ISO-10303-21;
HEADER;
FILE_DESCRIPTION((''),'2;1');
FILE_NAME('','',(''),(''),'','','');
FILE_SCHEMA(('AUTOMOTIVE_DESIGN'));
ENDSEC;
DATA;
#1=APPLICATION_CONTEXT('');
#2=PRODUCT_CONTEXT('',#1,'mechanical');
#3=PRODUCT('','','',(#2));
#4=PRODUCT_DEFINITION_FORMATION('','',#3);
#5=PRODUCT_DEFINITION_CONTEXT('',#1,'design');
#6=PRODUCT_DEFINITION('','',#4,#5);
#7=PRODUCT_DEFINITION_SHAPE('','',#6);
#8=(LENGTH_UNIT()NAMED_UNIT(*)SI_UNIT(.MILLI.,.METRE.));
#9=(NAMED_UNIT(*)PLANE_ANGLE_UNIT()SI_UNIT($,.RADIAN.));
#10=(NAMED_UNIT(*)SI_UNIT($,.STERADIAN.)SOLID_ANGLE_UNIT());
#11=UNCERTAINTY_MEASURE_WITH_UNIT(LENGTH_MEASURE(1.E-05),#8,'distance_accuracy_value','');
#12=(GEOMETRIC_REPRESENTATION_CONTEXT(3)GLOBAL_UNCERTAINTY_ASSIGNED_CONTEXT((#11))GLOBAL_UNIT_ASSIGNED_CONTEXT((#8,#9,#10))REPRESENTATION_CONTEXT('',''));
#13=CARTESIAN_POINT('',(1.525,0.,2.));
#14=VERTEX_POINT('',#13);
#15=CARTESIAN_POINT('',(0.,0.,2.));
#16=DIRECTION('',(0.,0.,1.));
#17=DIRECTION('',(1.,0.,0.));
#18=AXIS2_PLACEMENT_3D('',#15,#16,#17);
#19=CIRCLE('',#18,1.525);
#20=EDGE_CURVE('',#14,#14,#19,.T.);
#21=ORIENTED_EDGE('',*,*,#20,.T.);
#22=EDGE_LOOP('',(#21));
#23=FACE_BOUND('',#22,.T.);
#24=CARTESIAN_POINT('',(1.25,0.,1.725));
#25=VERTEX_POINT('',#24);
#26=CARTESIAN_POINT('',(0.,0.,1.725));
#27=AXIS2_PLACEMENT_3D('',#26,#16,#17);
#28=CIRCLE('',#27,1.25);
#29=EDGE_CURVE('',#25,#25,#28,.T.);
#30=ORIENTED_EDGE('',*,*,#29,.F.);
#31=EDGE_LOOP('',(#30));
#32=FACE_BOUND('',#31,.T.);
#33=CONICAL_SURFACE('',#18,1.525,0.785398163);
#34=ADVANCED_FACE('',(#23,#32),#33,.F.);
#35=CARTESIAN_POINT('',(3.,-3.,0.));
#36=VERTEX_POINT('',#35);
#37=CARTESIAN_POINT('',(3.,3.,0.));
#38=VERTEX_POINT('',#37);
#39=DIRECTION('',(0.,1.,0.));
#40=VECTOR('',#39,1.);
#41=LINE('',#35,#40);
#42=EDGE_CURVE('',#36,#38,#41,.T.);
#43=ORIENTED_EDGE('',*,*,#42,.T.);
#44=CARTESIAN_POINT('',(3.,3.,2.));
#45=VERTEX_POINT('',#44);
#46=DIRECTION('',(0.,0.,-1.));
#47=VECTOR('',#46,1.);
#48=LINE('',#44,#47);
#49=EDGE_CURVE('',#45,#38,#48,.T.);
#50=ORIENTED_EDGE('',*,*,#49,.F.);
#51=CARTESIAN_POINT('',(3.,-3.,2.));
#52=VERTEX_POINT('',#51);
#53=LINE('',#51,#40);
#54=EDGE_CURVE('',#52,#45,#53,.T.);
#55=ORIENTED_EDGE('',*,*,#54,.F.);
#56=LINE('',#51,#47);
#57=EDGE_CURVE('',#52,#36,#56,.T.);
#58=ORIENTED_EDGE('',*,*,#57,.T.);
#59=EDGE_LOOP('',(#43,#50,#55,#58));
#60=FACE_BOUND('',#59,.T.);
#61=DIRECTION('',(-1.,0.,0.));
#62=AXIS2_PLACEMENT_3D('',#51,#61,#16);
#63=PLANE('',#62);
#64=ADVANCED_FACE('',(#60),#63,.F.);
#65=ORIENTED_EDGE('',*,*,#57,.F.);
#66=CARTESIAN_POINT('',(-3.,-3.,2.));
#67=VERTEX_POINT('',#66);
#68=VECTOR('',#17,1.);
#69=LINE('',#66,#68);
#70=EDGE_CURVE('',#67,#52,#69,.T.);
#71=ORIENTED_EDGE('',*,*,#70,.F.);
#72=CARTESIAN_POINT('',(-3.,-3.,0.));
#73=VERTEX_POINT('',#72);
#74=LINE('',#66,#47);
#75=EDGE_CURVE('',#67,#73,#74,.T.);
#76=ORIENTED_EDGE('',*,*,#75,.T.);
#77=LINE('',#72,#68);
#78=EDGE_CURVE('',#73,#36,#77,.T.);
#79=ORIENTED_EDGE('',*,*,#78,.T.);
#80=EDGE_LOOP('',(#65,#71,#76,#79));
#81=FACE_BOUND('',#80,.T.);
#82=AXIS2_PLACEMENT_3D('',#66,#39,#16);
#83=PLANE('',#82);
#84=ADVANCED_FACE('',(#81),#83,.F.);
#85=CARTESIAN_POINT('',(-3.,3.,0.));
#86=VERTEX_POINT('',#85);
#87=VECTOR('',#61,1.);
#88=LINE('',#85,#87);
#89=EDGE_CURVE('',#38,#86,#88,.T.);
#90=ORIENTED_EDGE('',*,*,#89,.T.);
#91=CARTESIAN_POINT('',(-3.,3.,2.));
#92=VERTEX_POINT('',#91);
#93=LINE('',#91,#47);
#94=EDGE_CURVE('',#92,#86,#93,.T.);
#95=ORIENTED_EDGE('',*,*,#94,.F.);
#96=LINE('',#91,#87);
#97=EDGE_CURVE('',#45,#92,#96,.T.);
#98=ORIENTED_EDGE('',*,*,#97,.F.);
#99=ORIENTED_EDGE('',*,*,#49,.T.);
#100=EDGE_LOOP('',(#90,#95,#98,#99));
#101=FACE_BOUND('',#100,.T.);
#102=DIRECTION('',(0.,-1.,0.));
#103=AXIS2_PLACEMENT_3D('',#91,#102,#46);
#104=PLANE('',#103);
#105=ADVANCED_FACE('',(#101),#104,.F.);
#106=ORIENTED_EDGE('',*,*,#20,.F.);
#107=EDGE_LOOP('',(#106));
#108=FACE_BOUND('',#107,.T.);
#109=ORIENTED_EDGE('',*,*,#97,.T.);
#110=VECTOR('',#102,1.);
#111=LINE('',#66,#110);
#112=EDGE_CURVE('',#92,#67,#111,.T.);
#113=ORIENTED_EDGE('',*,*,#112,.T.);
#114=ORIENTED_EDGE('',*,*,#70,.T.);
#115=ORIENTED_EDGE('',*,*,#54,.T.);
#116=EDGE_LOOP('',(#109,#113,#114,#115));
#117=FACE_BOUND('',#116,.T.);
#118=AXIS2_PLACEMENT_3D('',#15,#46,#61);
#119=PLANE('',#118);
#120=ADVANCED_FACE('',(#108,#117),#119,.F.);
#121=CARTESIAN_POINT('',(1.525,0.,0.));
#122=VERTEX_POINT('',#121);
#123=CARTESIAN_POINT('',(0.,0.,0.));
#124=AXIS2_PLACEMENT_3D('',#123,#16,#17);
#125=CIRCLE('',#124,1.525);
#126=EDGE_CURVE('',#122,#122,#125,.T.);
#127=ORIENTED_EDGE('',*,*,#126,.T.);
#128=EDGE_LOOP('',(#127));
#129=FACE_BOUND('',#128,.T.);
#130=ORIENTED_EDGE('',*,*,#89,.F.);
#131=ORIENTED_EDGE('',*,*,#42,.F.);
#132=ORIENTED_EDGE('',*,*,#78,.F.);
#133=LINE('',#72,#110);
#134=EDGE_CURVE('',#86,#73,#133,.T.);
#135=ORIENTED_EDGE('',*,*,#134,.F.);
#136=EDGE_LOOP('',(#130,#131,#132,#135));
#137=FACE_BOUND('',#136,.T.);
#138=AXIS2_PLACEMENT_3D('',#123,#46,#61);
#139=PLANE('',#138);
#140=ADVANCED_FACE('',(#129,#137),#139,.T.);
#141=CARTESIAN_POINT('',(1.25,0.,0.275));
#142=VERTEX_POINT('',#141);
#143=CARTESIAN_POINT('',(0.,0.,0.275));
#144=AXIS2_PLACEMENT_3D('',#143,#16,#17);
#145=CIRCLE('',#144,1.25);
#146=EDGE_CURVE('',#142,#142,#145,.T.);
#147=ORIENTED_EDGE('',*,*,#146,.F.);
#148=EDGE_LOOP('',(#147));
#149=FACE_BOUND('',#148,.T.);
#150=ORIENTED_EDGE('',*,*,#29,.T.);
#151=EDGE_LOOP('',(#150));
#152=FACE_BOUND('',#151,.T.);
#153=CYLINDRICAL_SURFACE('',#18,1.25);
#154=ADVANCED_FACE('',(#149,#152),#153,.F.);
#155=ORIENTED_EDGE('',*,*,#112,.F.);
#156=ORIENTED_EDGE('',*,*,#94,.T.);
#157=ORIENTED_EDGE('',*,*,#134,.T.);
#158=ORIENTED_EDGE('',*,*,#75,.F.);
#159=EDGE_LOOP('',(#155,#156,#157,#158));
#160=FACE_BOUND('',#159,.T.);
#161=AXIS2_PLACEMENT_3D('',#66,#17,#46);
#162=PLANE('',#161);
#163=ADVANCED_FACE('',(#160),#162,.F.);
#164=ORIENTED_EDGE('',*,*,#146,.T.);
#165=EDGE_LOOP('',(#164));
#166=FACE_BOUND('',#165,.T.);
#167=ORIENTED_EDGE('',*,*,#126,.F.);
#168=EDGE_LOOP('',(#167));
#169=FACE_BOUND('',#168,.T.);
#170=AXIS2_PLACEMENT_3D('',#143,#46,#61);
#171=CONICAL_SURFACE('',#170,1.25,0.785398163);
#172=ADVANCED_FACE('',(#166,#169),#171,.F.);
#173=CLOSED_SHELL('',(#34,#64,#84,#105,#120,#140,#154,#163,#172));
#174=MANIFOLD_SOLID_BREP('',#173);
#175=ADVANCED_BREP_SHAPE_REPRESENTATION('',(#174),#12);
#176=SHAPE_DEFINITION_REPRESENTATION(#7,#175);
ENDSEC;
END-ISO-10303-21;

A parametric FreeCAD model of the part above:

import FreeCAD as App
import Part
import Sketcher
from FreeCAD import Vector
Q = App.Units.Quantity

doc = App.newDocument("Part")
body = doc.addObject("PartDesign::Body", "Body")

# Sketch on XY plane
sketch1 = body.newObject("Sketcher::SketchObject", "Sketch")
sketch1.AttachmentSupport = (doc.getObject("XY_Plane"), [""])
sketch1.MapMode = "FlatFace"
sketch1.addGeometry([
    Part.LineSegment(Vector(-3, 3, 0), Vector(-3, -3, 0)),
    Part.LineSegment(Vector(-3, -3, 0), Vector(3, -3, 0)),
    Part.LineSegment(Vector(3, -3, 0), Vector(3, 3, 0)),
    Part.LineSegment(Vector(3, 3, 0), Vector(-3, 3, 0)),
], False)
sketch1.addConstraint([
    Sketcher.Constraint("Coincident", 0, 2, 1, 1),
    Sketcher.Constraint("Coincident", 1, 2, 2, 1),
    Sketcher.Constraint("Coincident", 2, 2, 3, 1),
    Sketcher.Constraint("Coincident", 3, 2, 0, 1),
    Sketcher.Constraint("Vertical", 0),
    Sketcher.Constraint("Horizontal", 1),
    Sketcher.Constraint("Vertical", 2),
    Sketcher.Constraint("Horizontal", 3),
    Sketcher.Constraint("Symmetric", 0, 2, 2, 2, -1, 1),
    Sketcher.Constraint("Equal", 3, 0),
    Sketcher.Constraint("DistanceX", 1, 1, 1, 2, Q("6 mm")),
])
pad1 = body.newObject("PartDesign::Pad", "Pad")
pad1.Profile = sketch1
pad1.Length = 2

# Sketch on YZ plane
sketch2 = body.newObject("Sketcher::SketchObject", "Sketch001")
sketch2.AttachmentSupport = (doc.getObject("YZ_Plane"), [""])
sketch2.MapMode = "FlatFace"
sketch2.addGeometry([
    Part.LineSegment(Vector(0, 0, 0), Vector(0, 2, 0)),  # 0
    Part.LineSegment(Vector(0, 2, 0), Vector(-1.52, 2, 0)),  # 1
    Part.LineSegment(Vector(-1.52, 2, 0), Vector(-1.25, 1.73, 0)),  # 2
    Part.LineSegment(Vector(-1.25, 1.73, 0), Vector(-1.25, 0.28, 0)),  # 3
    Part.LineSegment(Vector(-1.25, 0.28, 0), Vector(-1.52, 0, 0)),  # 4
    Part.LineSegment(Vector(-1.52, 0, 0), Vector(0, 0, 0)),  # 5
], False)
sketch2.addConstraint([
    Sketcher.Constraint("Coincident", 0, 2, 1, 1),
    Sketcher.Constraint("Coincident", 1, 2, 2, 1),
    Sketcher.Constraint("Coincident", 2, 2, 3, 1),
    Sketcher.Constraint("Coincident", 3, 2, 4, 1),
    Sketcher.Constraint("Coincident", 4, 2, 5, 1),
    Sketcher.Constraint("Coincident", 5, 2, 0, 1),
    Sketcher.Constraint("Vertical", 0),
    Sketcher.Constraint("Horizontal", 1),
    Sketcher.Constraint("Vertical", 3),
    Sketcher.Constraint("Horizontal", 5),
    Sketcher.Constraint("Coincident", 5, 2, -1, 1),
    Sketcher.Constraint("Perpendicular", 2, 4),
    Sketcher.Constraint("Vertical", 1, 2, 4, 2),
    Sketcher.Constraint("Equal", 2, 4),
    Sketcher.Constraint("DistanceY", 0, 1, 0, 2, Q("2 mm")),
    Sketcher.Constraint("DistanceY", 3, 2, 3, 1, Q("1.45 mm")),
    Sketcher.Constraint("DistanceX", 1, 2, 1, 1, Q("1.525 mm")),
])
groove = body.newObject("PartDesign::Groove", "Groove")
groove.Profile = sketch2
groove.ReferenceAxis = (sketch2, ["V_Axis"])
groove.Angle = 360

doc.recompute()
